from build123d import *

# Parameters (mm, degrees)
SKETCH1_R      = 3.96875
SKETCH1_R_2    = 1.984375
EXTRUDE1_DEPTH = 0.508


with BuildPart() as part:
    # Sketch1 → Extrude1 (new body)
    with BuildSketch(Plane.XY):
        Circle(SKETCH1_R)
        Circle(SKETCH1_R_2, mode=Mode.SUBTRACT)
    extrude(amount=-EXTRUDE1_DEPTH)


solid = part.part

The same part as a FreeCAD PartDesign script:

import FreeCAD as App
import Part
import Sketcher

V = App.Vector
Q = App.Units.Quantity

doc = App.newDocument("Part")
params = doc.addObject("Spreadsheet::Sheet", "Params")
for row, (alias, value) in enumerate([
    ("sketch1_diameter", "0.3125 in"),
    ("sketch1_diameter2", "0.15625 in"),
    ("pad1_length", "0.02 in"),
], start=1):
    params.set(f"A{row}", alias)
    params.set(f"B{row}", "=" + value)
    params.setAlias(f"B{row}", alias)

body = doc.addObject("PartDesign::Body", "Body")

# Sketch on XY plane
sketch1 = body.newObject("Sketcher::SketchObject", "Sketch")
sketch1.AttachmentSupport = (doc.getObject("XY_Plane"), [""])
sketch1.MapMode = "FlatFace"
sketch1.addGeometry(Part.Circle(V(0, 0, 0), V(0, 0, 1), 3.96875), False)
sketch1.addGeometry(Part.Circle(V(0, 0, 0), V(0, 0, 1), 1.984375), False)
sketch1.addConstraint(Sketcher.Constraint("Coincident", 0, 3, -1, 1))
sketch1.addConstraint(Sketcher.Constraint("Coincident", 1, 3, -1, 1))
sketch1.addConstraint(Sketcher.Constraint("Diameter", 0, Q("0.3125 in")))
sketch1.addConstraint(Sketcher.Constraint("Diameter", 1, Q("0.15625 in")))
sketch1.setExpression("Constraints[2]", "Params.sketch1_diameter")
sketch1.setExpression("Constraints[3]", "Params.sketch1_diameter2")
pad1 = body.newObject("PartDesign::Pad", "Pad")
pad1.Profile = sketch1
pad1.setExpression("Length", "Params.pad1_length")
pad1.Reversed = True

doc.recompute()
